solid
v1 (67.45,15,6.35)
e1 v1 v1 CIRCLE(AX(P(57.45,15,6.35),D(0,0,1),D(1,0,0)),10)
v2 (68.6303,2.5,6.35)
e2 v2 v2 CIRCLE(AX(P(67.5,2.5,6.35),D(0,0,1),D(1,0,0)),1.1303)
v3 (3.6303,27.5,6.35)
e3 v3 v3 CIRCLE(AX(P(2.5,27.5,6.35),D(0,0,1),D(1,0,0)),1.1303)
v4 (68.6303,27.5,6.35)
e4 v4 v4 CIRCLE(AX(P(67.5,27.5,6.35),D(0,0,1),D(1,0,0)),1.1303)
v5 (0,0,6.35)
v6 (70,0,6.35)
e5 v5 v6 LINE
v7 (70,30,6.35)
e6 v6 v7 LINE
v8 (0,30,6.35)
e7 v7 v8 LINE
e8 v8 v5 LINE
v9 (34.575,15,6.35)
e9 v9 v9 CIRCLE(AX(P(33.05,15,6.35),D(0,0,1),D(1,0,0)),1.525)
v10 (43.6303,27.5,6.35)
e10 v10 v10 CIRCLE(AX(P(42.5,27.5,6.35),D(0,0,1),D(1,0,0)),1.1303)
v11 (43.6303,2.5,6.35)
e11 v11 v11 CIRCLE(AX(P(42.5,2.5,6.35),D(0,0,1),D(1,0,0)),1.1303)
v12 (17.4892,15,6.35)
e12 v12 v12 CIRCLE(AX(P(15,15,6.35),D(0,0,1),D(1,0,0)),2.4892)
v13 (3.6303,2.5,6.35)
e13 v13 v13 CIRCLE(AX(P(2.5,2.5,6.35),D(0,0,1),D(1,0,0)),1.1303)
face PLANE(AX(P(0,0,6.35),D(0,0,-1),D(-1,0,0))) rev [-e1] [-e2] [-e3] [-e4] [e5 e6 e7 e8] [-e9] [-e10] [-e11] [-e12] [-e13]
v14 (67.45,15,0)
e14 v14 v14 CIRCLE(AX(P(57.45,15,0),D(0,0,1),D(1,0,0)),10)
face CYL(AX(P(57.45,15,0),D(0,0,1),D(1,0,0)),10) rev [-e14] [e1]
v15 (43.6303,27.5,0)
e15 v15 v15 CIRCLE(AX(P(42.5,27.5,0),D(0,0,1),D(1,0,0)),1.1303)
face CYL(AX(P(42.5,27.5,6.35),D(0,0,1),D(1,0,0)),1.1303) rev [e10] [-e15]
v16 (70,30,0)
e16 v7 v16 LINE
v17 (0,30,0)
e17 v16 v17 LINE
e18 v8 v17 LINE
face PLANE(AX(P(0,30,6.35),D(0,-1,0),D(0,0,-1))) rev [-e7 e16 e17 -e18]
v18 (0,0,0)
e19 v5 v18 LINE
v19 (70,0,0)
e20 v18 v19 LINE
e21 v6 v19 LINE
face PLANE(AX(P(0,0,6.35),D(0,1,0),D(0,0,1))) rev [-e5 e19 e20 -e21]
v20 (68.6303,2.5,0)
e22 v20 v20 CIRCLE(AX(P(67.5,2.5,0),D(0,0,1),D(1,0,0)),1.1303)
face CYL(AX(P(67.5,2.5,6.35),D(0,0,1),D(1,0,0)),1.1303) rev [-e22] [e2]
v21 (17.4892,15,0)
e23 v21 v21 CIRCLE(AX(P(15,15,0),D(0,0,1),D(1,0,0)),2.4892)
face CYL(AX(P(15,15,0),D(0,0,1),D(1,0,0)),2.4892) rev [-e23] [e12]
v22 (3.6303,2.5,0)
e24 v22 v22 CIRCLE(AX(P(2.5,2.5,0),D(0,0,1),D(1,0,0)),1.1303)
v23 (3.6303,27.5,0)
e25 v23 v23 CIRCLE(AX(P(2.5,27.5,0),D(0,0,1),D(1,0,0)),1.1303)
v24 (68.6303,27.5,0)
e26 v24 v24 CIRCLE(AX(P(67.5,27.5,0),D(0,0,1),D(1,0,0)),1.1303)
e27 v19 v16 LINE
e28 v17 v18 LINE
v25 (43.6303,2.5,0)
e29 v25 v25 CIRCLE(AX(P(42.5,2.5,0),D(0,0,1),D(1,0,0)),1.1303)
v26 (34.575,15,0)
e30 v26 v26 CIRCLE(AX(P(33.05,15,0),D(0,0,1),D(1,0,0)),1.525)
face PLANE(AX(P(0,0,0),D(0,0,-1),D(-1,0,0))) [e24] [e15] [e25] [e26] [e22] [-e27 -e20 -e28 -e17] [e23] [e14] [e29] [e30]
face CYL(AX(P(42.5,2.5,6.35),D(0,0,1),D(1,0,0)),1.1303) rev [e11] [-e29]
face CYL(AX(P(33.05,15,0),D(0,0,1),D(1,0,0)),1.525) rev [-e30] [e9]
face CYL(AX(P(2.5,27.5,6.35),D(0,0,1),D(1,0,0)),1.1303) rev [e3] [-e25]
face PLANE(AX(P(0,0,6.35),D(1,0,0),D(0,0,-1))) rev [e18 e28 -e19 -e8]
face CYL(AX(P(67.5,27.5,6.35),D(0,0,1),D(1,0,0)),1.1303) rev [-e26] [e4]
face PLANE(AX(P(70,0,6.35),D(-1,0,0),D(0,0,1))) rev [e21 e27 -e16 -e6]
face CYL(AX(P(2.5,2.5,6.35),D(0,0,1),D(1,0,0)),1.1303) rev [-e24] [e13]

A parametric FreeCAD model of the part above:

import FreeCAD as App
import Part
import Sketcher

doc = App.newDocument("Part")
body = doc.addObject("PartDesign::Body", "Body")

sketch1 = body.newObject("Sketcher::SketchObject", "Sketch")
sketch1.AttachmentSupport = (doc.getObject("XY_Plane"), [""])
sketch1.MapMode = "FlatFace"
sketch1.addGeometry([
    Part.LineSegment(App.Vector(0, 30, 0), App.Vector(0, 0, 0)),
    Part.LineSegment(App.Vector(0, 0, 0), App.Vector(70, 0, 0)),
    Part.LineSegment(App.Vector(70, 0, 0), App.Vector(70, 30, 0)),
    Part.LineSegment(App.Vector(70, 30, 0), App.Vector(0, 30, 0)),
], False)
sketch1.addConstraint([
    Sketcher.Constraint("Coincident", 0, 2, 1, 1),
    Sketcher.Constraint("Coincident", 1, 2, 2, 1),
    Sketcher.Constraint("Coincident", 2, 2, 3, 1),
    Sketcher.Constraint("Coincident", 3, 2, 0, 1),
    Sketcher.Constraint("Vertical", 0),
    Sketcher.Constraint("Horizontal", 1),
    Sketcher.Constraint("Vertical", 2),
    Sketcher.Constraint("Horizontal", 3),
    Sketcher.Constraint("Coincident", 0, 2, -1, 1),
    Sketcher.Constraint("DistanceX", 1, 1, 1, 2, 70.0),
    Sketcher.Constraint("DistanceY", 0, 2, 0, 1, 30.0),
])
pad1 = body.newObject("PartDesign::Pad", "Pad")
pad1.Profile = sketch1
pad1.Length = 6.35

sketch2 = body.newObject("Sketcher::SketchObject", "Sketch001")
sketch2.AttachmentSupport = (doc.getObject("XY_Plane"), [""])
sketch2.MapMode = "FlatFace"
sketch2.AttachmentOffset = App.Placement(App.Vector(0, 0, 6.35), App.Rotation())
sketch2.addGeometry([
    Part.Circle(App.Vector(2.5, 27.5, 0), App.Vector(0, 0, 1), 1.1303),
    Part.Circle(App.Vector(42.5, 27.5, 0), App.Vector(0, 0, 1), 1.1303),
    Part.Circle(App.Vector(67.5, 27.5, 0), App.Vector(0, 0, 1), 1.1303),
    Part.Circle(App.Vector(67.5, 2.5, 0), App.Vector(0, 0, 1), 1.1303),
    Part.Circle(App.Vector(42.5, 2.5, 0), App.Vector(0, 0, 1), 1.1303),
    Part.Circle(App.Vector(2.5, 2.5, 0), App.Vector(0, 0, 1), 1.1303),
], False)
sketch2.addConstraint([
    Sketcher.Constraint("Equal", 0, 1),
    Sketcher.Constraint("Equal", 1, 2),
    Sketcher.Constraint("Equal", 2, 3),
    Sketcher.Constraint("Equal", 3, 4),
    Sketcher.Constraint("Equal", 4, 5),
    Sketcher.Constraint("Horizontal", 0, 3, 1, 3),
    Sketcher.Constraint("Horizontal", 1, 3, 2, 3),
    Sketcher.Constraint("Horizontal", 3, 3, 4, 3),
    Sketcher.Constraint("Horizontal", 4, 3, 5, 3),
    Sketcher.Constraint("Vertical", 2, 3, 3, 3),
    Sketcher.Constraint("Vertical", 1, 3, 4, 3),
    Sketcher.Constraint("Vertical", 0, 3, 5, 3),
    Sketcher.Constraint("DistanceX", 0, 3, 1, 3, 40.0),
    Sketcher.Constraint("DistanceX", 1, 3, 2, 3, 25.0),
    Sketcher.Constraint("DistanceY", 3, 3, 2, 3, 25.0),
    Sketcher.Constraint("Diameter", 0, 2.2606),
    Sketcher.Constraint("DistanceX", -1, 1, 0, 3, 2.5),
    Sketcher.Constraint("DistanceY", -1, 1, 0, 3, 27.5),
])
doc.recompute()
hole = body.newObject("PartDesign::Hole", "Hole")
hole.Profile = sketch2
hole.ThreadType = "None"
hole.Diameter = 2.2606
hole.DepthType = "ThroughAll"

sketch3 = body.newObject("Sketcher::SketchObject", "Sketch002")
sketch3.AttachmentSupport = (doc.getObject("XY_Plane"), [""])
sketch3.MapMode = "FlatFace"
sketch3.AttachmentOffset = App.Placement(App.Vector(0, 0, 6.35), App.Rotation())
sketch3.addGeometry([
    Part.Circle(App.Vector(57.45, 15, 0), App.Vector(0, 0, 1), 10),
    Part.Circle(App.Vector(15, 15, 0), App.Vector(0, 0, 1), 2.4892),
    Part.Circle(App.Vector(33.05, 15, 0), App.Vector(0, 0, 1), 1.525),
], False)
sketch3.addConstraint([
    Sketcher.Constraint("Horizontal", 0, 3, 1, 3),
    Sketcher.Constraint("Horizontal", 1, 3, 2, 3),
    Sketcher.Constraint("Diameter", 0, 20.0),
    Sketcher.Constraint("Diameter", 2, 3.05),
    Sketcher.Constraint("DistanceY", -1, 1, 0, 3, 15.0),
    Sketcher.Constraint("DistanceX", -1, 1, 1, 3, 15.0),
    Sketcher.Constraint("Diameter", 1, 4.9784),
    Sketcher.Constraint("DistanceX", 2, 3, 0, 3, 24.4),
    Sketcher.Constraint("DistanceX", -1, 1, 0, 3, 57.45),
])
pocket1 = body.newObject("PartDesign::Pocket", "Pocket")
pocket1.Profile = sketch3
pocket1.Type = "ThroughAll"

doc.recompute()
